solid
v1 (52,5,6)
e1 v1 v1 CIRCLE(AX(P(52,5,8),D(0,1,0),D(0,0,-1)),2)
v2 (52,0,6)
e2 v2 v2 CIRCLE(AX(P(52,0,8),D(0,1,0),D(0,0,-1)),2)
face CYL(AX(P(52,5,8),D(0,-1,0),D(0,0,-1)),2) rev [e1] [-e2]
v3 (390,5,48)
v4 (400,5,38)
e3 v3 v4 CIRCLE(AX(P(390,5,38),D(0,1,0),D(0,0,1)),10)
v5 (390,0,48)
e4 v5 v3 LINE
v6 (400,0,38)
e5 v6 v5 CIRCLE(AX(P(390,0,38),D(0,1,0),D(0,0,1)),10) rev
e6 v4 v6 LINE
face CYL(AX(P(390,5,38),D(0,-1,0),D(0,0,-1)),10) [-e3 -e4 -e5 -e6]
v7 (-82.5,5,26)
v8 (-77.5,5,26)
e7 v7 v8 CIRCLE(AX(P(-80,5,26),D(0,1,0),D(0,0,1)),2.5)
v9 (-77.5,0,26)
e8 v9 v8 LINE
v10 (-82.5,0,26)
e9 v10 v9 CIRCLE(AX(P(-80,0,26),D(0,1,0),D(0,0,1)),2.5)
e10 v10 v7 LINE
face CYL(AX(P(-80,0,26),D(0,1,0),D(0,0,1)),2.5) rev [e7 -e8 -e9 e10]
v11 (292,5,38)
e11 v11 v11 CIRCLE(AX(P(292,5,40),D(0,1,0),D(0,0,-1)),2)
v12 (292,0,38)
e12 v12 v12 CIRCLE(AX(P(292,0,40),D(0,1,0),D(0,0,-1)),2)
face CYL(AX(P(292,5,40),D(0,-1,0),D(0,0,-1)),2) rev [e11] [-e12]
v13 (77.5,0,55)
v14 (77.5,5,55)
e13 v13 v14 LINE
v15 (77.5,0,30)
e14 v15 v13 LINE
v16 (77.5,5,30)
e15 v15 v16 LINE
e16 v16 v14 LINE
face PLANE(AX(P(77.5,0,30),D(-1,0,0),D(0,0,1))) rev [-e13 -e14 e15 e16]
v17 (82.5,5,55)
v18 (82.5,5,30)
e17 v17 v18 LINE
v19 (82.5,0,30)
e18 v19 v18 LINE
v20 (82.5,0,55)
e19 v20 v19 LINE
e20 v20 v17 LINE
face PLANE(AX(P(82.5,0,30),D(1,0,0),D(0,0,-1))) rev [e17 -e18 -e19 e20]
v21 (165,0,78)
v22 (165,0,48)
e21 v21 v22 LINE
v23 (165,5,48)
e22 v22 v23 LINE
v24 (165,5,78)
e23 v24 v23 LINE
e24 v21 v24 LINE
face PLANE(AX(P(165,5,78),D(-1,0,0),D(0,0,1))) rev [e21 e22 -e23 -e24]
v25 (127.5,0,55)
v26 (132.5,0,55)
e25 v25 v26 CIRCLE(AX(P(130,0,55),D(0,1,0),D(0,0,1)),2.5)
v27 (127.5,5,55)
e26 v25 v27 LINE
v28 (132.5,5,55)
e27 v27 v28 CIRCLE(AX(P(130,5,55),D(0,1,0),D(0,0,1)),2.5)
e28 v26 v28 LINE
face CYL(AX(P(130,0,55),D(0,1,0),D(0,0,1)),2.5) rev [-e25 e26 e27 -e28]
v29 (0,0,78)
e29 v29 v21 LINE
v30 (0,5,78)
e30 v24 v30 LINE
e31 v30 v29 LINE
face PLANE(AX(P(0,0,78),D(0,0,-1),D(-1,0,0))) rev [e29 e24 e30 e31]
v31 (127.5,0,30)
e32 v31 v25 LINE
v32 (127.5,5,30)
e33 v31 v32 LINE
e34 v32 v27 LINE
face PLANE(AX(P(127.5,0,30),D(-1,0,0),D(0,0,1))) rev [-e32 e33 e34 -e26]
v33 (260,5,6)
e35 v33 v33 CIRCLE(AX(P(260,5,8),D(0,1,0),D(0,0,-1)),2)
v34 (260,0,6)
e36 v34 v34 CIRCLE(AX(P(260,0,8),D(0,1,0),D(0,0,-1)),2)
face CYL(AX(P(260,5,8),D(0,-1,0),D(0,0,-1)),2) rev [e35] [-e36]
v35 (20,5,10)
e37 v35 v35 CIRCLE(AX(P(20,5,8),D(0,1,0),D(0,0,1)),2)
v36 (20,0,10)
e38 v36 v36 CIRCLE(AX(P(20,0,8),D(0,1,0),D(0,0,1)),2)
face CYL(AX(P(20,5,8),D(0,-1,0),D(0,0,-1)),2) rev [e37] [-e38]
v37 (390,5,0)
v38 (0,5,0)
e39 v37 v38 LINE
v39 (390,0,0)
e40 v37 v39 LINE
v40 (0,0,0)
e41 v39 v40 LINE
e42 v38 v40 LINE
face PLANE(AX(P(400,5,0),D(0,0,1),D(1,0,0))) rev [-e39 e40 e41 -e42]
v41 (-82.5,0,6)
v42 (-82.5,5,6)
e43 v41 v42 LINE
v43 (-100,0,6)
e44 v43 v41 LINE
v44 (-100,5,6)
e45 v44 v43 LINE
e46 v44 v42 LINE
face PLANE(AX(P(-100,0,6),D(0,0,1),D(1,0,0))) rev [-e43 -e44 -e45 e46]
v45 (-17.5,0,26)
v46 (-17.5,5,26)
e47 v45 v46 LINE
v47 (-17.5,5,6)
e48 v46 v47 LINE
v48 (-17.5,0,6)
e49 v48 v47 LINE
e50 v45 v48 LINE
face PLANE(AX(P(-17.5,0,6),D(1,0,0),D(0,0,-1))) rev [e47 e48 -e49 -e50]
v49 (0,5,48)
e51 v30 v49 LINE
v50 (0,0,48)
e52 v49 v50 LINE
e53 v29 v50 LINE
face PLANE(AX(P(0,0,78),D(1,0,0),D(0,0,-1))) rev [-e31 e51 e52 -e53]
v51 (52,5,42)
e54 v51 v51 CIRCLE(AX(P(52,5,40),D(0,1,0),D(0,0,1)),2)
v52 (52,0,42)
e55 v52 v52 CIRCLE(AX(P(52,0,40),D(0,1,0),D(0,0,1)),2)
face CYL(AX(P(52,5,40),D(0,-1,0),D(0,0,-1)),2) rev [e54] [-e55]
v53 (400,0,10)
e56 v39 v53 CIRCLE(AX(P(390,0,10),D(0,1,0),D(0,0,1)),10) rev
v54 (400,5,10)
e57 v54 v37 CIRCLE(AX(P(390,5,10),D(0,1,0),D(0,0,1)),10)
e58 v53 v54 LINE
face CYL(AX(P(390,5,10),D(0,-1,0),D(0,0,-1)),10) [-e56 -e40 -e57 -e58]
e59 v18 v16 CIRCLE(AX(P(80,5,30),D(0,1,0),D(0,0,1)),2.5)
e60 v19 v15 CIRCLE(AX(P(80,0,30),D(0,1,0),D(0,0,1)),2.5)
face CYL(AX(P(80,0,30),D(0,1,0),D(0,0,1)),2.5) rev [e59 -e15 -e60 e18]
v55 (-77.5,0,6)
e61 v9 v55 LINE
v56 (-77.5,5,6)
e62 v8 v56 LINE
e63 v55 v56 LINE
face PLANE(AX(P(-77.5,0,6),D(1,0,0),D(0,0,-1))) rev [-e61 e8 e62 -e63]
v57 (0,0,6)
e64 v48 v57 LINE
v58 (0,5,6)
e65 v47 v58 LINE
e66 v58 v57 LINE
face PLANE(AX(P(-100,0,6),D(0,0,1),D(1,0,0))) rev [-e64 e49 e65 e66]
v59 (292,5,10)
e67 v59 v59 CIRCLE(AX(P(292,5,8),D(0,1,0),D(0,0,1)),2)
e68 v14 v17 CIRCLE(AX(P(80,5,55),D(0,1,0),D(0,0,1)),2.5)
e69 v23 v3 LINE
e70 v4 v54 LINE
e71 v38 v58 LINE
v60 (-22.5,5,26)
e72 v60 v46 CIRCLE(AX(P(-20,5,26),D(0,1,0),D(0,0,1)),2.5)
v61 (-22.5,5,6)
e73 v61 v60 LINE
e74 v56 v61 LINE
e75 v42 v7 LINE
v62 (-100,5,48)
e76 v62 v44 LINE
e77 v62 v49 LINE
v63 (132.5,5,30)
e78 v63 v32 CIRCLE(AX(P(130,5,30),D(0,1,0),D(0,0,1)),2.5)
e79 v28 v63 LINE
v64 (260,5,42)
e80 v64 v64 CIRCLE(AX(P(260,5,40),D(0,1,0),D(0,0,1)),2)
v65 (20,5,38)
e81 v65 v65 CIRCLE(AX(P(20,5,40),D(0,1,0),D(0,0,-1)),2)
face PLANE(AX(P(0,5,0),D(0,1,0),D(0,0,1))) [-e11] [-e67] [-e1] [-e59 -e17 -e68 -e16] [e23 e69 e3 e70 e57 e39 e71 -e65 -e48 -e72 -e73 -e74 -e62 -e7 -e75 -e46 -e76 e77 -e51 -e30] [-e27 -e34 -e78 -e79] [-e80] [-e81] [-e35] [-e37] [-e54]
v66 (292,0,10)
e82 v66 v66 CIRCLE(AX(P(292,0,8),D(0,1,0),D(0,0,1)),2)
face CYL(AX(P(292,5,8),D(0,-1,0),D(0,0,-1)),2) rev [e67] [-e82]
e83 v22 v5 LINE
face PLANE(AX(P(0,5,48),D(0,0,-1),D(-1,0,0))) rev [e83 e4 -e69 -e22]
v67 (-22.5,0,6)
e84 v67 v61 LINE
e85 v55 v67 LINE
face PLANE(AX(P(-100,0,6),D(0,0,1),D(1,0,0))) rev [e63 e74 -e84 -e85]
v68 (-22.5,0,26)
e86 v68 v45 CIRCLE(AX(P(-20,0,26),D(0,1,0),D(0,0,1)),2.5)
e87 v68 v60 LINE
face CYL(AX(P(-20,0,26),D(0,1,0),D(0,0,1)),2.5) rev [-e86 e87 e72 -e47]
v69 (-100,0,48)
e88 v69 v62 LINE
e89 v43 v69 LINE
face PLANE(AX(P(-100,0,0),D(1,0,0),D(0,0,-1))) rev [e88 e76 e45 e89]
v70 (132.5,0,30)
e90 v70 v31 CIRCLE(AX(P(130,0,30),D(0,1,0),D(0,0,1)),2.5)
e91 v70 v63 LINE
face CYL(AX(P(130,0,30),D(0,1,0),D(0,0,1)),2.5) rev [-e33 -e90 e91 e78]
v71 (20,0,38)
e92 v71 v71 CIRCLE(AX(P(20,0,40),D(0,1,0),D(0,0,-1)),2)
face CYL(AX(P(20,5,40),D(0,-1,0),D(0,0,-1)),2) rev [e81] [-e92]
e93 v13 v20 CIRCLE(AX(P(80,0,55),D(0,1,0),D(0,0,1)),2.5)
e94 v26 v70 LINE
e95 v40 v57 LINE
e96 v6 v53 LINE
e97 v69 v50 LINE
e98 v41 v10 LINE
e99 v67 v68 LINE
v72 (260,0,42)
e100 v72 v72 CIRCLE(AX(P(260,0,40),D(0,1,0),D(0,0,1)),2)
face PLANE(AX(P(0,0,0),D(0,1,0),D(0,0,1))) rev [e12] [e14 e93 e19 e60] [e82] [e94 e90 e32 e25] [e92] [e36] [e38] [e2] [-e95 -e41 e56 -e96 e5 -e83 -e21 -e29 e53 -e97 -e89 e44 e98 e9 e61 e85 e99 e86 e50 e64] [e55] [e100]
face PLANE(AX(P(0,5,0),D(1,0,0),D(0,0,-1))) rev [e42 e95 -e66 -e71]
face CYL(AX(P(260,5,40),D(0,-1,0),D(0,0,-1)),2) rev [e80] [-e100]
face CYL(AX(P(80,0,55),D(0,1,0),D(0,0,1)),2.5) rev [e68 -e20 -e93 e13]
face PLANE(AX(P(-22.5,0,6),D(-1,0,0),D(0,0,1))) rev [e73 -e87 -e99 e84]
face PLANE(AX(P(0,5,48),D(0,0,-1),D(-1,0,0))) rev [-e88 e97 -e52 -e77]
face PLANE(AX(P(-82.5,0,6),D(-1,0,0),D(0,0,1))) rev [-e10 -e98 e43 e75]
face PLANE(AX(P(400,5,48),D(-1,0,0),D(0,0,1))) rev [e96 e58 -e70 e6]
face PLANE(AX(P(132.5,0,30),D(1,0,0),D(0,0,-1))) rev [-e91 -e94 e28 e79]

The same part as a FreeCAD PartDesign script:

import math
import FreeCAD as App
import Part
import Sketcher


def edges_at(feature, points):
    """Names of the edges that pass closest to the given points."""
    edges = feature.Shape.Edges
    near = lambda p: min(range(len(edges)), key=lambda i: edges[i].distToShape(Part.Vertex(*p))[0])
    return sorted({f"Edge{near(p) + 1}" for p in points})

doc = App.newDocument("Part")
body = doc.addObject("PartDesign::Body", "Body")

# Sketch on XZ plane
sketch1 = doc.addObject("Sketcher::SketchObject", "Sketch")
body.addObject(sketch1)
sketch1.AttachmentSupport = (doc.XZ_Plane, [""])
sketch1.MapMode = "FlatFace"
sketch1.addGeometry(Part.LineSegment(App.Vector(0, 0, 0), App.Vector(0, 48, 0)), False)
sketch1.addGeometry(Part.LineSegment(App.Vector(0, 48, 0), App.Vector(400, 48, 0)), False)
sketch1.addGeometry(Part.LineSegment(App.Vector(400, 48, 0), App.Vector(400, 0, 0)), False)
sketch1.addGeometry(Part.LineSegment(App.Vector(400, 0, 0), App.Vector(0, 0, 0)), False)
sketch1.addGeometry(Part.Circle(App.Vector(20, 40, 0), App.Vector(0, 0, 1), 2), False)
sketch1.addGeometry(Part.Circle(App.Vector(52, 40, 0), App.Vector(0, 0, 1), 2), False)
sketch1.addGeometry(Part.Circle(App.Vector(260, 40, 0), App.Vector(0, 0, 1), 2), False)
sketch1.addGeometry(Part.Circle(App.Vector(292, 40, 0), App.Vector(0, 0, 1), 2), False)
sketch1.addGeometry(Part.Circle(App.Vector(20, 8, 0), App.Vector(0, 0, 1), 2), False)
sketch1.addGeometry(Part.Circle(App.Vector(52, 8, 0), App.Vector(0, 0, 1), 2), False)
sketch1.addGeometry(Part.Circle(App.Vector(260, 8, 0), App.Vector(0, 0, 1), 2), False)
sketch1.addGeometry(Part.Circle(App.Vector(292, 8, 0), App.Vector(0, 0, 1), 2), False)
sketch1.addConstraint(Sketcher.Constraint("Coincident", 0, 2, 1, 1))
sketch1.addConstraint(Sketcher.Constraint("Coincident", 1, 2, 2, 1))
sketch1.addConstraint(Sketcher.Constraint("Coincident", 2, 2, 3, 1))
sketch1.addConstraint(Sketcher.Constraint("Coincident", 3, 2, 0, 1))
sketch1.addConstraint(Sketcher.Constraint("Vertical", 0))
sketch1.addConstraint(Sketcher.Constraint("Horizontal", 1))
sketch1.addConstraint(Sketcher.Constraint("Vertical", 2))
sketch1.addConstraint(Sketcher.Constraint("Horizontal", 3))
sketch1.addConstraint(Sketcher.Constraint("Coincident", 3, 2, -1, 1))
sketch1.addConstraint(Sketcher.Constraint("Equal", 4, 5))
sketch1.addConstraint(Sketcher.Constraint("Equal", 5, 6))
sketch1.addConstraint(Sketcher.Constraint("Equal", 6, 7))
sketch1.addConstraint(Sketcher.Constraint("Equal", 7, 8))
sketch1.addConstraint(Sketcher.Constraint("Equal", 8, 9))
sketch1.addConstraint(Sketcher.Constraint("Equal", 9, 10))
sketch1.addConstraint(Sketcher.Constraint("Equal", 10, 11))
sketch1.addConstraint(Sketcher.Constraint("Horizontal", 4, 3, 5, 3))
sketch1.addConstraint(Sketcher.Constraint("Horizontal", 5, 3, 6, 3))
sketch1.addConstraint(Sketcher.Constraint("Horizontal", 6, 3, 7, 3))
sketch1.addConstraint(Sketcher.Constraint("Horizontal", 8, 3, 9, 3))
sketch1.addConstraint(Sketcher.Constraint("Horizontal", 9, 3, 10, 3))
sketch1.addConstraint(Sketcher.Constraint("Horizontal", 10, 3, 11, 3))
sketch1.addConstraint(Sketcher.Constraint("Vertical", 4, 3, 8, 3))
sketch1.addConstraint(Sketcher.Constraint("Vertical", 5, 3, 9, 3))
sketch1.addConstraint(Sketcher.Constraint("Vertical", 6, 3, 10, 3))
sketch1.addConstraint(Sketcher.Constraint("Vertical", 7, 3, 11, 3))
sketch1.addConstraint(Sketcher.Constraint("Diameter", 4, 4.0))
sketch1.addConstraint(Sketcher.Constraint("DistanceX", 1, 1, 1, 2, 400.0))
sketch1.addConstraint(Sketcher.Constraint("DistanceY", 0, 1, 0, 2, 48.0))
sketch1.addConstraint(Sketcher.Constraint("DistanceX", -1, 1, 4, 3, 20.0))
sketch1.addConstraint(Sketcher.Constraint("DistanceY", -1, 1, 4, 3, 40.0))
sketch1.addConstraint(Sketcher.Constraint("DistanceX", -1, 1, 5, 3, 52.0))
sketch1.addConstraint(Sketcher.Constraint("DistanceX", -1, 1, 6, 3, 260.0))
sketch1.addConstraint(Sketcher.Constraint("DistanceX", -1, 1, 7, 3, 292.0))
sketch1.addConstraint(Sketcher.Constraint("DistanceY", -1, 1, 8, 3, 8.0))
pad1 = doc.addObject("PartDesign::Pad", "Pad")
body.addObject(pad1)
pad1.Profile = sketch1
pad1.Length = 5
pad1.Reversed = True

# Sketch on YZ plane
sketch2 = doc.addObject("Sketcher::SketchObject", "Sketch001")
body.addObject(sketch2)
sketch2.AttachmentSupport = (doc.YZ_Plane, [""])
sketch2.MapMode = "FlatFace"
sketch2.addGeometry(Part.LineSegment(App.Vector(5, 6, 0), App.Vector(0, 6, 0)), False)
sketch2.addGeometry(Part.LineSegment(App.Vector(0, 6, 0), App.Vector(0, 48, 0)), False)
sketch2.addGeometry(Part.LineSegment(App.Vector(0, 48, 0), App.Vector(5, 48, 0)), False)
sketch2.addGeometry(Part.LineSegment(App.Vector(5, 48, 0), App.Vector(5, 6, 0)), False)
sketch2.addConstraint(Sketcher.Constraint("Coincident", 0, 2, 1, 1))
sketch2.addConstraint(Sketcher.Constraint("Coincident", 1, 2, 2, 1))
sketch2.addConstraint(Sketcher.Constraint("Coincident", 2, 2, 3, 1))
sketch2.addConstraint(Sketcher.Constraint("Coincident", 3, 2, 0, 1))
sketch2.addConstraint(Sketcher.Constraint("Horizontal", 0))
sketch2.addConstraint(Sketcher.Constraint("Vertical", 1))
sketch2.addConstraint(Sketcher.Constraint("Horizontal", 2))
sketch2.addConstraint(Sketcher.Constraint("Vertical", 3))
sketch2.addConstraint(Sketcher.Constraint("PointOnObject", 0, 2, -2))
sketch2.addConstraint(Sketcher.Constraint("DistanceX", 0, 2, 0, 1, 5.0))
sketch2.addConstraint(Sketcher.Constraint("DistanceY", 1, 1, 1, 2, 42.0))
sketch2.addConstraint(Sketcher.Constraint("DistanceY", -1, 1, 0, 2, 6.0))
pad2 = doc.addObject("PartDesign::Pad", "Pad001")
body.addObject(pad2)
pad2.Profile = sketch2
pad2.Length = 100
pad2.Reversed = True

# Sketch on XY plane
sketch3 = doc.addObject("Sketcher::SketchObject", "Sketch002")
body.addObject(sketch3)
sketch3.AttachmentSupport = (doc.XY_Plane, [""])
sketch3.MapMode = "FlatFace"
sketch3.AttachmentOffset = App.Placement(App.Vector(0, 0, 48), App.Rotation())
sketch3.addGeometry(Part.LineSegment(App.Vector(0, 5, 0), App.Vector(0, 0, 0)), False)
sketch3.addGeometry(Part.LineSegment(App.Vector(0, 0, 0), App.Vector(165, 0, 0)), False)
sketch3.addGeometry(Part.LineSegment(App.Vector(165, 0, 0), App.Vector(165, 5, 0)), False)
sketch3.addGeometry(Part.LineSegment(App.Vector(165, 5, 0), App.Vector(0, 5, 0)), False)
sketch3.addConstraint(Sketcher.Constraint("Coincident", 0, 2, 1, 1))
sketch3.addConstraint(Sketcher.Constraint("Coincident", 1, 2, 2, 1))
sketch3.addConstraint(Sketcher.Constraint("Coincident", 2, 2, 3, 1))
sketch3.addConstraint(Sketcher.Constraint("Coincident", 3, 2, 0, 1))
sketch3.addConstraint(Sketcher.Constraint("Vertical", 0))
sketch3.addConstraint(Sketcher.Constraint("Horizontal", 1))
sketch3.addConstraint(Sketcher.Constraint("Vertical", 2))
sketch3.addConstraint(Sketcher.Constraint("Horizontal", 3))
sketch3.addConstraint(Sketcher.Constraint("Coincident", 0, 2, -1, 1))
sketch3.addConstraint(Sketcher.Constraint("DistanceX", 1, 1, 1, 2, 165.0))
sketch3.addConstraint(Sketcher.Constraint("DistanceY", 0, 2, 0, 1, 5.0))
pad3 = doc.addObject("PartDesign::Pad", "Pad002")
body.addObject(pad3)
pad3.Profile = sketch3
pad3.Length = 30

# Sketch on XZ plane
sketch4 = doc.addObject("Sketcher::SketchObject", "Sketch003")
body.addObject(sketch4)
sketch4.AttachmentSupport = (doc.XZ_Plane, [""])
sketch4.MapMode = "FlatFace"
sketch4.AttachmentOffset = App.Placement(App.Vector(0, 0, -5), App.Rotation())
sketch4.addGeometry(Part.LineSegment(App.Vector(-77.5, 26, 0), App.Vector(-77.5, 6, 0)), False)
sketch4.addGeometry(Part.ArcOfCircle(Part.Circle(App.Vector(-80, 6, 0), App.Vector(0, 0, 1), 2.5), math.radians(180), math.radians(360)), False)
sketch4.addGeometry(Part.LineSegment(App.Vector(-82.5, 6, 0), App.Vector(-82.5, 26, 0)), False)
sketch4.addGeometry(Part.ArcOfCircle(Part.Circle(App.Vector(-80, 26, 0), App.Vector(0, 0, 1), 2.5), math.radians(0), math.radians(180)), False)
sketch4.addGeometry(Part.LineSegment(App.Vector(-17.5, 26, 0), App.Vector(-17.5, 6, 0)), False)
sketch4.addGeometry(Part.ArcOfCircle(Part.Circle(App.Vector(-20, 6, 0), App.Vector(0, 0, 1), 2.5), math.radians(180), math.radians(360)), False)
sketch4.addGeometry(Part.LineSegment(App.Vector(-22.5, 6, 0), App.Vector(-22.5, 26, 0)), False)
sketch4.addGeometry(Part.ArcOfCircle(Part.Circle(App.Vector(-20, 26, 0), App.Vector(0, 0, 1), 2.5), math.radians(0), math.radians(180)), False)
sketch4.addGeometry(Part.LineSegment(App.Vector(82.5, 55, 0), App.Vector(82.5, 30, 0)), False)
sketch4.addGeometry(Part.ArcOfCircle(Part.Circle(App.Vector(80, 30, 0), App.Vector(0, 0, 1), 2.5), math.radians(180), math.radians(360)), False)
sketch4.addGeometry(Part.LineSegment(App.Vector(77.5, 30, 0), App.Vector(77.5, 55, 0)), False)
sketch4.addGeometry(Part.ArcOfCircle(Part.Circle(App.Vector(80, 55, 0), App.Vector(0, 0, 1), 2.5), math.radians(0), math.radians(180)), False)
sketch4.addGeometry(Part.LineSegment(App.Vector(132.5, 55, 0), App.Vector(132.5, 30, 0)), False)
sketch4.addGeometry(Part.ArcOfCircle(Part.Circle(App.Vector(130, 30, 0), App.Vector(0, 0, 1), 2.5), math.radians(180), math.radians(360)), False)
sketch4.addGeometry(Part.LineSegment(App.Vector(127.5, 30, 0), App.Vector(127.5, 55, 0)), False)
sketch4.addGeometry(Part.ArcOfCircle(Part.Circle(App.Vector(130, 55, 0), App.Vector(0, 0, 1), 2.5), math.radians(0), math.radians(180)), False)
sketch4.addConstraint(Sketcher.Constraint("Tangent", 0, 2, 1, 2))
sketch4.addConstraint(Sketcher.Constraint("Tangent", 1, 1, 2, 1))
sketch4.addConstraint(Sketcher.Constraint("Tangent", 2, 2, 3, 2))
sketch4.addConstraint(Sketcher.Constraint("Tangent", 3, 1, 0, 1))
sketch4.addConstraint(Sketcher.Constraint("Tangent", 4, 2, 5, 2))
sketch4.addConstraint(Sketcher.Constraint("Tangent", 5, 1, 6, 1))
sketch4.addConstraint(Sketcher.Constraint("Tangent", 6, 2, 7, 2))
sketch4.addConstraint(Sketcher.Constraint("Tangent", 7, 1, 4, 1))
sketch4.addConstraint(Sketcher.Constraint("Tangent", 8, 2, 9, 2))
sketch4.addConstraint(Sketcher.Constraint("Tangent", 9, 1, 10, 1))
sketch4.addConstraint(Sketcher.Constraint("Tangent", 10, 2, 11, 2))
sketch4.addConstraint(Sketcher.Constraint("Tangent", 11, 1, 8, 1))
sketch4.addConstraint(Sketcher.Constraint("Tangent", 12, 2, 13, 2))
sketch4.addConstraint(Sketcher.Constraint("Tangent", 13, 1, 14, 1))
sketch4.addConstraint(Sketcher.Constraint("Tangent", 14, 2, 15, 2))
sketch4.addConstraint(Sketcher.Constraint("Tangent", 15, 1, 12, 1))
sketch4.addConstraint(Sketcher.Constraint("Vertical", 0))
sketch4.addConstraint(Sketcher.Constraint("Vertical", 2))
sketch4.addConstraint(Sketcher.Constraint("Vertical", 4))
sketch4.addConstraint(Sketcher.Constraint("Vertical", 6))
sketch4.addConstraint(Sketcher.Constraint("Vertical", 8))
sketch4.addConstraint(Sketcher.Constraint("Vertical", 10))
sketch4.addConstraint(Sketcher.Constraint("Vertical", 12))
sketch4.addConstraint(Sketcher.Constraint("Vertical", 14))
sketch4.addConstraint(Sketcher.Constraint("Equal", 3, 5))
sketch4.addConstraint(Sketcher.Constraint("Equal", 7, 9))
sketch4.addConstraint(Sketcher.Constraint("Equal", 11, 13))
sketch4.addConstraint(Sketcher.Constraint("Horizontal", 1, 3, 5, 3))
sketch4.addConstraint(Sketcher.Constraint("Horizontal", 3, 3, 7, 3))
sketch4.addConstraint(Sketcher.Constraint("Horizontal", 9, 3, 13, 3))
sketch4.addConstraint(Sketcher.Constraint("Horizontal", 11, 3, 15, 3))
sketch4.addConstraint(Sketcher.Constraint("Radius", 1, 2.5))
sketch4.addConstraint(Sketcher.Constraint("DistanceY", 0, 2, 0, 1, 20.0))
sketch4.addConstraint(Sketcher.Constraint("DistanceY", 8, 2, 8, 1, 25.0))
sketch4.addConstraint(Sketcher.Constraint("DistanceX", 1, 3, -1, 1, 80.0))
sketch4.addConstraint(Sketcher.Constraint("DistanceY", -1, 1, 1, 3, 6.0))
sketch4.addConstraint(Sketcher.Constraint("DistanceX", 5, 3, -1, 1, 20.0))
sketch4.addConstraint(Sketcher.Constraint("DistanceX", -1, 1, 9, 3, 80.0))
sketch4.addConstraint(Sketcher.Constraint("DistanceY", -1, 1, 9, 3, 30.0))
sketch4.addConstraint(Sketcher.Constraint("DistanceX", -1, 1, 13, 3, 130.0))
pocket1 = doc.addObject("PartDesign::Pocket", "Pocket")
body.addObject(pocket1)
pocket1.Profile = sketch4
pocket1.Type = "ThroughAll"
pocket1.Reversed = True
doc.recompute()

fillet = doc.addObject("PartDesign::Fillet", "Fillet")
body.addObject(fillet)
fillet.Base = (pocket1, edges_at(pocket1, [(400, 2.5, 0), (400, 2.5, 48)]))
fillet.Radius = 10

doc.recompute()
